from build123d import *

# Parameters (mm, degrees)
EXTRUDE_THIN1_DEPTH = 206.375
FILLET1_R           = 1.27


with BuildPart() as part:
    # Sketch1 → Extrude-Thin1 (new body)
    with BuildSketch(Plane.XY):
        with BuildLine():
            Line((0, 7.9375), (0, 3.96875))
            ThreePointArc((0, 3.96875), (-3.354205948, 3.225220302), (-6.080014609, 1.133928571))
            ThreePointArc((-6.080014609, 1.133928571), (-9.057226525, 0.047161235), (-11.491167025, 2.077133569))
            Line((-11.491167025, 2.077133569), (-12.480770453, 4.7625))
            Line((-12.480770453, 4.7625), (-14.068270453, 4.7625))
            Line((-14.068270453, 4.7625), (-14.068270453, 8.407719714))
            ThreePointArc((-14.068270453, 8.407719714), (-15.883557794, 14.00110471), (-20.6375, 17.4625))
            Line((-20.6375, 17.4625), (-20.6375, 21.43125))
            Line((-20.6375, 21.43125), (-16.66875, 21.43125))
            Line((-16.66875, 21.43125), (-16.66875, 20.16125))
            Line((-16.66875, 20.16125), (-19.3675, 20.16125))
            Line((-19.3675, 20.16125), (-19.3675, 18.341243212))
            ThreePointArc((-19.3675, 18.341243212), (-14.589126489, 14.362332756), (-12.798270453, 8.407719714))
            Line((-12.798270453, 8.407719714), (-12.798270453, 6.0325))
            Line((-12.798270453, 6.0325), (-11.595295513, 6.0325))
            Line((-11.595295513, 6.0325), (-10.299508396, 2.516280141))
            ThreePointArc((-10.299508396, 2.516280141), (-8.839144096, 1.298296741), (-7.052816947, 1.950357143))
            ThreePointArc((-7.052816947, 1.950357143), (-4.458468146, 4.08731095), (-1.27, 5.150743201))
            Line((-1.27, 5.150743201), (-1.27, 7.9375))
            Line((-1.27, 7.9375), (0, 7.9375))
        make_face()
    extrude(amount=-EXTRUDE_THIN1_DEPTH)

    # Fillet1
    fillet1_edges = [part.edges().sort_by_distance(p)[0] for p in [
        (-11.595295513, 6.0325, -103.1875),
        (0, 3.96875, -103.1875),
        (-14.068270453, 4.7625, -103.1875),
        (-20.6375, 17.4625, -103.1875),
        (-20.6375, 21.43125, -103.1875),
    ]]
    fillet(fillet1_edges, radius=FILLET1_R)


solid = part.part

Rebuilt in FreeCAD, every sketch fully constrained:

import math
import FreeCAD as App
import Part
import Sketcher
Q = App.Units.Quantity


def edges_at(feature, points):
    """Names of the edges that pass closest to the given points."""
    edges = feature.Shape.Edges
    near = lambda p: min(range(len(edges)), key=lambda i: edges[i].distToShape(Part.Vertex(*p))[0])
    return sorted({f"Edge{near(p) + 1}" for p in points})

doc = App.newDocument("Part")
params = doc.addObject("Spreadsheet::Sheet", "Params")
for row, (alias, value) in enumerate([
    ("sketch1_radius", "0.075 in"),
    ("sketch1_radius2", "0.425 in"),
    ("sketch1_radius3", "0.375 in"),
    ("sketch1_radius4", "0.125 in"),
    ("sketch1_radius5", "0.3125 in"),
    ("pad1_length", "8.125 in"),
    ("fillet_radius", "0.05 in"),
], start=1):
    params.set(f"A{row}", alias)
    params.set(f"B{row}", "=" + value)
    params.setAlias(f"B{row}", alias)

body = doc.addObject("PartDesign::Body", "Body")

# Sketch on XY plane
sketch1 = body.newObject("Sketcher::SketchObject", "Sketch")
sketch1.AttachmentSupport = (doc.getObject("XY_Plane"), [""])
sketch1.MapMode = "FlatFace"
sketch1.addGeometry([
    Part.LineSegment(App.Vector(0, 4, 0), App.Vector(0, 7.9, 0)),  # 0
    Part.LineSegment(App.Vector(0, 7.9, 0), App.Vector(-1.3, 7.9, 0)),  # 1
    Part.LineSegment(App.Vector(-1.3, 7.9, 0), App.Vector(-1.3, 5.2, 0)),  # 2
    Part.ArcOfCircle(Part.Circle(App.Vector(0, -4, 0), App.Vector(0, 0, 1), 9.2), math.radians(98), math.radians(140)),  # 3
    Part.ArcOfCircle(Part.Circle(App.Vector(-8.5, 3.2, 0), App.Vector(0, 0, 1), 1.9), math.radians(-160), math.radians(-40)),  # 4
    Part.LineSegment(App.Vector(-10.3, 2.5, 0), App.Vector(-11.6, 6, 0)),  # 5
    Part.LineSegment(App.Vector(-11.6, 6, 0), App.Vector(-12.8, 6, 0)),  # 6
    Part.LineSegment(App.Vector(-12.8, 6, 0), App.Vector(-12.8, 8.4, 0)),  # 7
    Part.ArcOfCircle(Part.Circle(App.Vector(-23.6, 8.4, 0), App.Vector(0, 0, 1), 10.8), math.radians(0), math.radians(67)),  # 8
    Part.LineSegment(App.Vector(-19.4, 18.3, 0), App.Vector(-19.4, 20.2, 0)),  # 9
    Part.LineSegment(App.Vector(-19.4, 20.2, 0), App.Vector(-16.7, 20.2, 0)),  # 10
    Part.LineSegment(App.Vector(-16.7, 20.2, 0), App.Vector(-16.7, 21.4, 0)),  # 11
    Part.LineSegment(App.Vector(-16.7, 21.4, 0), App.Vector(-20.6, 21.4, 0)),  # 12
    Part.LineSegment(App.Vector(-20.6, 21.4, 0), App.Vector(-20.6, 17.5, 0)),  # 13
    Part.ArcOfCircle(Part.Circle(App.Vector(-23.6, 8.4, 0), App.Vector(0, 0, 1), 9.5), math.radians(0), math.radians(72)),  # 14
    Part.LineSegment(App.Vector(-14.1, 8.4, 0), App.Vector(-14.1, 4.8, 0)),  # 15
    Part.LineSegment(App.Vector(-14.1, 4.8, 0), App.Vector(-12.5, 4.8, 0)),  # 16
    Part.LineSegment(App.Vector(-12.5, 4.8, 0), App.Vector(-11.5, 2.1, 0)),  # 17
    Part.ArcOfCircle(Part.Circle(App.Vector(-8.5, 3.2, 0), App.Vector(0, 0, 1), 3.2), math.radians(-160), math.radians(-40)),  # 18
    Part.ArcOfCircle(Part.Circle(App.Vector(0, -4, 0), App.Vector(0, 0, 1), 7.9), math.radians(90), math.radians(140)),  # 19
], False)
sketch1.addConstraint([
    Sketcher.Constraint("Coincident", 0, 2, 1, 1),
    Sketcher.Constraint("Coincident", 1, 2, 2, 1),
    Sketcher.Constraint("Coincident", 2, 2, 3, 1),
    Sketcher.Constraint("Tangent", 3, 2, 4, 2),
    Sketcher.Constraint("Tangent", 4, 1, 5, 1),
    Sketcher.Constraint("Coincident", 5, 2, 6, 1),
    Sketcher.Constraint("Coincident", 6, 2, 7, 1),
    Sketcher.Constraint("Tangent", 7, 2, 8, 1),
    Sketcher.Constraint("Coincident", 8, 2, 9, 1),
    Sketcher.Constraint("Coincident", 9, 2, 10, 1),
    Sketcher.Constraint("Coincident", 10, 2, 11, 1),
    Sketcher.Constraint("Coincident", 11, 2, 12, 1),
    Sketcher.Constraint("Coincident", 12, 2, 13, 1),
    Sketcher.Constraint("Coincident", 13, 2, 14, 2),
    Sketcher.Constraint("Tangent", 14, 1, 15, 1),
    Sketcher.Constraint("Coincident", 15, 2, 16, 1),
    Sketcher.Constraint("Coincident", 16, 2, 17, 1),
    Sketcher.Constraint("Tangent", 17, 2, 18, 1),
    Sketcher.Constraint("Tangent", 18, 2, 19, 2),
    Sketcher.Constraint("Coincident", 19, 1, 0, 1),
    Sketcher.Constraint("Vertical", 0),
    Sketcher.Constraint("Horizontal", 1),
    Sketcher.Constraint("Vertical", 2),
    Sketcher.Constraint("Horizontal", 6),
    Sketcher.Constraint("Vertical", 7),
    Sketcher.Constraint("Vertical", 9),
    Sketcher.Constraint("Horizontal", 10),
    Sketcher.Constraint("Vertical", 11),
    Sketcher.Constraint("Horizontal", 12),
    Sketcher.Constraint("Vertical", 13),
    Sketcher.Constraint("Vertical", 15),
    Sketcher.Constraint("Horizontal", 16),
    Sketcher.Constraint("Coincident", 14, 3, 8, 3),
    Sketcher.Constraint("Coincident", 18, 3, 4, 3),
    Sketcher.Constraint("Coincident", 19, 3, 3, 3),
    Sketcher.Constraint("PointOnObject", 3, 3, -2),
    Sketcher.Constraint("PointOnObject", 0, 2, -2),
    Sketcher.Constraint("Parallel", 5, 17),
    Sketcher.Constraint("Equal", 12, 0),
    Sketcher.Constraint("Equal", 1, 11),
    Sketcher.Constraint("Equal", 0, 13),
    Sketcher.Constraint("Radius", 4, Q("0.075 in")),
    Sketcher.Constraint("Radius", 8, Q("0.425 in")),
    Sketcher.Constraint("Radius", 14, Q("0.375 in")),
    Sketcher.Constraint("Radius", 18, Q("0.125 in")),
    Sketcher.Constraint("Radius", 19, Q("0.3125 in")),
    Sketcher.Constraint("DistanceX", 1, 2, 1, 1, Q("0.05 in")),
    Sketcher.Constraint("DistanceX", 12, 2, 12, 1, Q("0.15625 in")),
    Sketcher.Constraint("DistanceX", 16, 1, 16, 2, Q("0.0625 in")),
    Sketcher.Constraint("DistanceX", 12, 2, 9, 2, Q("0.05 in")),
    Sketcher.Constraint("DistanceY", 15, 2, 6, 2, Q("0.05 in")),
    Sketcher.Constraint("DistanceY", 3, 3, -1, 1, Q("0.15625 in")),
    Sketcher.Constraint("DistanceY", -1, 1, 4, 3, Q("0.125 in")),
    Sketcher.Constraint("DistanceX", 10, 2, -1, 1, Q("0.65625 in")),
    Sketcher.Constraint("DistanceY", -1, 1, 11, 2, Q("0.84375 in")),
    Sketcher.Constraint("DistanceY", -1, 1, 15, 2, Q("0.1875 in")),
    Sketcher.Constraint("DistanceX", 8, 3, 4, 3, Q("0.59375 in")),
])
sketch1.setExpression("Constraints[41]", "Params.sketch1_radius")
sketch1.setExpression("Constraints[42]", "Params.sketch1_radius2")
sketch1.setExpression("Constraints[43]", "Params.sketch1_radius3")
sketch1.setExpression("Constraints[44]", "Params.sketch1_radius4")
sketch1.setExpression("Constraints[45]", "Params.sketch1_radius5")
pad1 = body.newObject("PartDesign::Pad", "Pad")
pad1.Profile = sketch1
pad1.setExpression("Length", "Params.pad1_length")
pad1.Reversed = True
doc.recompute()

fillet = body.newObject("PartDesign::Fillet", "Fillet")
fillet.Base = (pad1, edges_at(pad1, [
    (-11.595, 6.032, -103.188),
    (0, 3.969, -103.188),
    (-14.068, 4.763, -103.188),
    (-20.637, 17.462, -103.188),
    (-20.637, 21.431, -103.188),
]))
fillet.setExpression("Radius", "Params.fillet_radius")

doc.recompute()
